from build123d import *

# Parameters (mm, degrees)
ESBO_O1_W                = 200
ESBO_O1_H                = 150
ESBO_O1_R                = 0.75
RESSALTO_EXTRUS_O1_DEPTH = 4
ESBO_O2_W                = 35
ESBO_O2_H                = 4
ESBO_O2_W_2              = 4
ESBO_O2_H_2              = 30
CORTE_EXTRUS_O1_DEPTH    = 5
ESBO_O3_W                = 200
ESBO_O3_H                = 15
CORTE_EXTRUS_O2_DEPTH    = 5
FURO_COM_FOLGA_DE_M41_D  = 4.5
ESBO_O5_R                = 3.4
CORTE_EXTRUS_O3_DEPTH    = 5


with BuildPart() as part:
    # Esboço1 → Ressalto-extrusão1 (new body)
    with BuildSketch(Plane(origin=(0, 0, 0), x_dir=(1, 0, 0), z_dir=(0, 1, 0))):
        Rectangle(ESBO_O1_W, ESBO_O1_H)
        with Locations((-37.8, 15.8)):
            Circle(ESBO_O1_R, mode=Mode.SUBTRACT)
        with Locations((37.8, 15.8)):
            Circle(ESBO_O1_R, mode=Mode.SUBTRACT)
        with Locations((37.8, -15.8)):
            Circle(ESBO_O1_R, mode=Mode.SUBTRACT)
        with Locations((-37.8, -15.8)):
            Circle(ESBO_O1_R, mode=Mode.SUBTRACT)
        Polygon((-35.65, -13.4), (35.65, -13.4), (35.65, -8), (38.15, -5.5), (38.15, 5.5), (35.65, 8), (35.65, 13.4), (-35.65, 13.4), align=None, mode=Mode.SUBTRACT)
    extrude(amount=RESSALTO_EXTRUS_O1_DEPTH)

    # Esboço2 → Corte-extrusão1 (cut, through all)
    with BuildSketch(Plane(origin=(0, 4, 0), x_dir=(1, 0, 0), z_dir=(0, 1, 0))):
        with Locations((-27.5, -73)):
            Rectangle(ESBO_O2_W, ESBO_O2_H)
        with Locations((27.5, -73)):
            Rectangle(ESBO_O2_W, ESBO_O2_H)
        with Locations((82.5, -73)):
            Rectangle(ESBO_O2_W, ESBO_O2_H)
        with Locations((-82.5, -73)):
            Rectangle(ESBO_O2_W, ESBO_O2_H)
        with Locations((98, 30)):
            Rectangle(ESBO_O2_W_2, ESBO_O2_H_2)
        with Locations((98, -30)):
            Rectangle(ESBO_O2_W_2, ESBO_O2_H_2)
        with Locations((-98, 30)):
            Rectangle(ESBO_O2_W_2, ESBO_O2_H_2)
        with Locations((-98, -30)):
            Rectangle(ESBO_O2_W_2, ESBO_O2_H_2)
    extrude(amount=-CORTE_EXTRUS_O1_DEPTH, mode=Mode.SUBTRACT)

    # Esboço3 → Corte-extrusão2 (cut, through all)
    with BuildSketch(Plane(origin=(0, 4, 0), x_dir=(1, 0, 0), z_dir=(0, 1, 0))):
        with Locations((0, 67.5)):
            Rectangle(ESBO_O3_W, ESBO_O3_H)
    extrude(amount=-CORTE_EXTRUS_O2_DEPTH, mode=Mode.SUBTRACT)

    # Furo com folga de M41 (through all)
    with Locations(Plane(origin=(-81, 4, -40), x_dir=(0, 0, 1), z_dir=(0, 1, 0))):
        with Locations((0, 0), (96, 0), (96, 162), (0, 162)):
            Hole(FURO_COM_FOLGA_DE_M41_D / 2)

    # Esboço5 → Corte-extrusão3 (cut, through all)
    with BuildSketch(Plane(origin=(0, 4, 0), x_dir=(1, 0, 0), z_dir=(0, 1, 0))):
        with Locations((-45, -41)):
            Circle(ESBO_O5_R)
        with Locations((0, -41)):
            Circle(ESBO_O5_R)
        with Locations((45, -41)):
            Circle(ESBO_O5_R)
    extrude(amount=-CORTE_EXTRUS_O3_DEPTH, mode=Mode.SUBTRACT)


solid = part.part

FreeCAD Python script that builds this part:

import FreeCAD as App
import Part
import Sketcher

doc = App.newDocument("Part")
body = doc.addObject("PartDesign::Body", "Body")

# Sketch on XZ plane
sketch1 = body.newObject("Sketcher::SketchObject", "Sketch")
sketch1.AttachmentSupport = (doc.getObject("XZ_Plane"), [""])
sketch1.MapMode = "FlatFace"
sketch1.addGeometry(Part.LineSegment(App.Vector(-100, -75, 0), App.Vector(-100, 75, 0)), False)
sketch1.addGeometry(Part.LineSegment(App.Vector(-100, 75, 0), App.Vector(100, 75, 0)), False)
sketch1.addGeometry(Part.LineSegment(App.Vector(100, 75, 0), App.Vector(100, -75, 0)), False)
sketch1.addGeometry(Part.LineSegment(App.Vector(100, -75, 0), App.Vector(-100, -75, 0)), False)
sketch1.addGeometry(Part.Circle(App.Vector(-37.8, 15.8, 0), App.Vector(0, 0, 1), 0.75), False)
sketch1.addGeometry(Part.Circle(App.Vector(37.8, 15.8, 0), App.Vector(0, 0, 1), 0.75), False)
sketch1.addGeometry(Part.Circle(App.Vector(-37.8, -15.8, 0), App.Vector(0, 0, 1), 0.75), False)
sketch1.addGeometry(Part.LineSegment(App.Vector(35.65, 13.4, 0), App.Vector(-35.65, 13.4, 0)), False)
sketch1.addGeometry(Part.LineSegment(App.Vector(-35.65, 13.4, 0), App.Vector(-35.65, -13.4, 0)), False)
sketch1.addGeometry(Part.LineSegment(App.Vector(-35.65, -13.4, 0), App.Vector(35.65, -13.4, 0)), False)
sketch1.addGeometry(Part.LineSegment(App.Vector(35.65, -13.4, 0), App.Vector(35.65, -8, 0)), False)
sketch1.addGeometry(Part.LineSegment(App.Vector(35.65, -8, 0), App.Vector(38.15, -5.5, 0)), False)
sketch1.addGeometry(Part.LineSegment(App.Vector(38.15, -5.5, 0), App.Vector(38.15, 5.5, 0)), False)
sketch1.addGeometry(Part.LineSegment(App.Vector(38.15, 5.5, 0), App.Vector(35.65, 8, 0)), False)
sketch1.addGeometry(Part.LineSegment(App.Vector(35.65, 8, 0), App.Vector(35.65, 13.4, 0)), False)
sketch1.addGeometry(Part.Circle(App.Vector(37.8, -15.8, 0), App.Vector(0, 0, 1), 0.75), False)
sketch1.addConstraint(Sketcher.Constraint("Coincident", 0, 2, 1, 1))
sketch1.addConstraint(Sketcher.Constraint("Coincident", 1, 2, 2, 1))
sketch1.addConstraint(Sketcher.Constraint("Coincident", 2, 2, 3, 1))
sketch1.addConstraint(Sketcher.Constraint("Coincident", 3, 2, 0, 1))
sketch1.addConstraint(Sketcher.Constraint("Coincident", 7, 2, 8, 1))
sketch1.addConstraint(Sketcher.Constraint("Coincident", 8, 2, 9, 1))
sketch1.addConstraint(Sketcher.Constraint("Coincident", 9, 2, 10, 1))
sketch1.addConstraint(Sketcher.Constraint("Coincident", 10, 2, 11, 1))
sketch1.addConstraint(Sketcher.Constraint("Coincident", 11, 2, 12, 1))
sketch1.addConstraint(Sketcher.Constraint("Coincident", 12, 2, 13, 1))
sketch1.addConstraint(Sketcher.Constraint("Coincident", 13, 2, 14, 1))
sketch1.addConstraint(Sketcher.Constraint("Coincident", 14, 2, 7, 1))
sketch1.addConstraint(Sketcher.Constraint("Vertical", 0))
sketch1.addConstraint(Sketcher.Constraint("Horizontal", 1))
sketch1.addConstraint(Sketcher.Constraint("Vertical", 2))
sketch1.addConstraint(Sketcher.Constraint("Horizontal", 3))
sketch1.addConstraint(Sketcher.Constraint("Horizontal", 7))
sketch1.addConstraint(Sketcher.Constraint("Vertical", 8))
sketch1.addConstraint(Sketcher.Constraint("Horizontal", 9))
sketch1.addConstraint(Sketcher.Constraint("Vertical", 10))
sketch1.addConstraint(Sketcher.Constraint("Vertical", 12))
sketch1.addConstraint(Sketcher.Constraint("Vertical", 14))
sketch1.addConstraint(Sketcher.Constraint("Equal", 4, 5))
sketch1.addConstraint(Sketcher.Constraint("Equal", 5, 6))
sketch1.addConstraint(Sketcher.Constraint("Equal", 6, 15))
sketch1.addConstraint(Sketcher.Constraint("Symmetric", 5, 3, 6, 3, -1, 1))
sketch1.addConstraint(Sketcher.Constraint("Symmetric", 4, 3, 15, 3, -1, 1))
sketch1.addConstraint(Sketcher.Constraint("Symmetric", 0, 2, 2, 2, -1, 1))
sketch1.addConstraint(Sketcher.Constraint("Symmetric", 7, 2, 9, 2, -1, 1))
sketch1.addConstraint(Sketcher.Constraint("Symmetric", 4, 3, 5, 3, -2))
sketch1.addConstraint(Sketcher.Constraint("Symmetric", 10, 2, 13, 2, -1))
sketch1.addConstraint(Sketcher.Constraint("Perpendicular", 11, 13))
sketch1.addConstraint(Sketcher.Constraint("Equal", 11, 13))
sketch1.addConstraint(Sketcher.Constraint("Diameter", 4, 1.5))
sketch1.addConstraint(Sketcher.Constraint("DistanceX", 1, 1, 1, 2, 200.0))
sketch1.addConstraint(Sketcher.Constraint("DistanceY", 0, 1, 0, 2, 150.0))
sketch1.addConstraint(Sketcher.Constraint("DistanceY", 12, 1, 12, 2, 11.0))
sketch1.addConstraint(Sketcher.Constraint("DistanceX", 7, 2, 7, 1, 71.3))
sketch1.addConstraint(Sketcher.Constraint("DistanceY", 8, 2, 8, 1, 26.8))
sketch1.addConstraint(Sketcher.Constraint("DistanceY", 10, 1, 10, 2, 5.4))
sketch1.addConstraint(Sketcher.Constraint("DistanceX", 4, 3, -1, 1, 37.8))
sketch1.addConstraint(Sketcher.Constraint("DistanceY", -1, 1, 4, 3, 15.8))
pad1 = body.newObject("PartDesign::Pad", "Pad")
pad1.Profile = sketch1
pad1.Length = 4
pad1.Reversed = True

# Sketch on XZ plane
sketch2 = body.newObject("Sketcher::SketchObject", "Sketch001")
sketch2.AttachmentSupport = (doc.getObject("XZ_Plane"), [""])
sketch2.MapMode = "FlatFace"
sketch2.AttachmentOffset = App.Placement(App.Vector(0, 0, -4), App.Rotation())
sketch2.addGeometry(Part.LineSegment(App.Vector(-45, 71, 0), App.Vector(-45, 75, 0)), False)
sketch2.addGeometry(Part.LineSegment(App.Vector(-45, 75, 0), App.Vector(-10, 75, 0)), False)
sketch2.addGeometry(Part.LineSegment(App.Vector(-10, 75, 0), App.Vector(-10, 71, 0)), False)
sketch2.addGeometry(Part.LineSegment(App.Vector(-10, 71, 0), App.Vector(-45, 71, 0)), False)
sketch2.addGeometry(Part.LineSegment(App.Vector(10, 71, 0), App.Vector(10, 75, 0)), False)
sketch2.addGeometry(Part.LineSegment(App.Vector(10, 75, 0), App.Vector(45, 75, 0)), False)
sketch2.addGeometry(Part.LineSegment(App.Vector(45, 75, 0), App.Vector(45, 71, 0)), False)
sketch2.addGeometry(Part.LineSegment(App.Vector(45, 71, 0), App.Vector(10, 71, 0)), False)
sketch2.addGeometry(Part.LineSegment(App.Vector(65, 71, 0), App.Vector(65, 75, 0)), False)
sketch2.addGeometry(Part.LineSegment(App.Vector(65, 75, 0), App.Vector(100, 75, 0)), False)
sketch2.addGeometry(Part.LineSegment(App.Vector(100, 75, 0), App.Vector(100, 71, 0)), False)
sketch2.addGeometry(Part.LineSegment(App.Vector(100, 71, 0), App.Vector(65, 71, 0)), False)
sketch2.addGeometry(Part.LineSegment(App.Vector(-100, 71, 0), App.Vector(-100, 75, 0)), False)
sketch2.addGeometry(Part.LineSegment(App.Vector(-100, 75, 0), App.Vector(-65, 75, 0)), False)
sketch2.addGeometry(Part.LineSegment(App.Vector(-65, 75, 0), App.Vector(-65, 71, 0)), False)
sketch2.addGeometry(Part.LineSegment(App.Vector(-65, 71, 0), App.Vector(-100, 71, 0)), False)
sketch2.addGeometry(Part.LineSegment(App.Vector(96, -45, 0), App.Vector(96, -15, 0)), False)
sketch2.addGeometry(Part.LineSegment(App.Vector(96, -15, 0), App.Vector(100, -15, 0)), False)
sketch2.addGeometry(Part.LineSegment(App.Vector(100, -15, 0), App.Vector(100, -45, 0)), False)
sketch2.addGeometry(Part.LineSegment(App.Vector(100, -45, 0), App.Vector(96, -45, 0)), False)
sketch2.addGeometry(Part.LineSegment(App.Vector(96, 15, 0), App.Vector(96, 45, 0)), False)
sketch2.addGeometry(Part.LineSegment(App.Vector(96, 45, 0), App.Vector(100, 45, 0)), False)
sketch2.addGeometry(Part.LineSegment(App.Vector(100, 45, 0), App.Vector(100, 15, 0)), False)
sketch2.addGeometry(Part.LineSegment(App.Vector(100, 15, 0), App.Vector(96, 15, 0)), False)
sketch2.addGeometry(Part.LineSegment(App.Vector(-100, -45, 0), App.Vector(-100, -15, 0)), False)
sketch2.addGeometry(Part.LineSegment(App.Vector(-100, -15, 0), App.Vector(-96, -15, 0)), False)
sketch2.addGeometry(Part.LineSegment(App.Vector(-96, -15, 0), App.Vector(-96, -45, 0)), False)
sketch2.addGeometry(Part.LineSegment(App.Vector(-96, -45, 0), App.Vector(-100, -45, 0)), False)
sketch2.addGeometry(Part.LineSegment(App.Vector(-100, 15, 0), App.Vector(-100, 45, 0)), False)
sketch2.addGeometry(Part.LineSegment(App.Vector(-100, 45, 0), App.Vector(-96, 45, 0)), False)
sketch2.addGeometry(Part.LineSegment(App.Vector(-96, 45, 0), App.Vector(-96, 15, 0)), False)
sketch2.addGeometry(Part.LineSegment(App.Vector(-96, 15, 0), App.Vector(-100, 15, 0)), False)
sketch2.addConstraint(Sketcher.Constraint("Coincident", 0, 2, 1, 1))
sketch2.addConstraint(Sketcher.Constraint("Coincident", 1, 2, 2, 1))
sketch2.addConstraint(Sketcher.Constraint("Coincident", 2, 2, 3, 1))
sketch2.addConstraint(Sketcher.Constraint("Coincident", 3, 2, 0, 1))
sketch2.addConstraint(Sketcher.Constraint("Coincident", 4, 2, 5, 1))
sketch2.addConstraint(Sketcher.Constraint("Coincident", 5, 2, 6, 1))
sketch2.addConstraint(Sketcher.Constraint("Coincident", 6, 2, 7, 1))
sketch2.addConstraint(Sketcher.Constraint("Coincident", 7, 2, 4, 1))
sketch2.addConstraint(Sketcher.Constraint("Coincident", 8, 2, 9, 1))
sketch2.addConstraint(Sketcher.Constraint("Coincident", 9, 2, 10, 1))
sketch2.addConstraint(Sketcher.Constraint("Coincident", 10, 2, 11, 1))
sketch2.addConstraint(Sketcher.Constraint("Coincident", 11, 2, 8, 1))
sketch2.addConstraint(Sketcher.Constraint("Coincident", 12, 2, 13, 1))
sketch2.addConstraint(Sketcher.Constraint("Coincident", 13, 2, 14, 1))
sketch2.addConstraint(Sketcher.Constraint("Coincident", 14, 2, 15, 1))
sketch2.addConstraint(Sketcher.Constraint("Coincident", 15, 2, 12, 1))
sketch2.addConstraint(Sketcher.Constraint("Coincident", 16, 2, 17, 1))
sketch2.addConstraint(Sketcher.Constraint("Coincident", 17, 2, 18, 1))
sketch2.addConstraint(Sketcher.Constraint("Coincident", 18, 2, 19, 1))
sketch2.addConstraint(Sketcher.Constraint("Coincident", 19, 2, 16, 1))
sketch2.addConstraint(Sketcher.Constraint("Coincident", 20, 2, 21, 1))
sketch2.addConstraint(Sketcher.Constraint("Coincident", 21, 2, 22, 1))
sketch2.addConstraint(Sketcher.Constraint("Coincident", 22, 2, 23, 1))
sketch2.addConstraint(Sketcher.Constraint("Coincident", 23, 2, 20, 1))
sketch2.addConstraint(Sketcher.Constraint("Coincident", 24, 2, 25, 1))
sketch2.addConstraint(Sketcher.Constraint("Coincident", 25, 2, 26, 1))
sketch2.addConstraint(Sketcher.Constraint("Coincident", 26, 2, 27, 1))
sketch2.addConstraint(Sketcher.Constraint("Coincident", 27, 2, 24, 1))
sketch2.addConstraint(Sketcher.Constraint("Coincident", 28, 2, 29, 1))
sketch2.addConstraint(Sketcher.Constraint("Coincident", 29, 2, 30, 1))
sketch2.addConstraint(Sketcher.Constraint("Coincident", 30, 2, 31, 1))
sketch2.addConstraint(Sketcher.Constraint("Coincident", 31, 2, 28, 1))
sketch2.addConstraint(Sketcher.Constraint("Vertical", 0))
sketch2.addConstraint(Sketcher.Constraint("Horizontal", 1))
sketch2.addConstraint(Sketcher.Constraint("Vertical", 2))
sketch2.addConstraint(Sketcher.Constraint("Horizontal", 3))
sketch2.addConstraint(Sketcher.Constraint("Vertical", 4))
sketch2.addConstraint(Sketcher.Constraint("Horizontal", 5))
sketch2.addConstraint(Sketcher.Constraint("Vertical", 6))
sketch2.addConstraint(Sketcher.Constraint("Horizontal", 7))
sketch2.addConstraint(Sketcher.Constraint("Vertical", 8))
sketch2.addConstraint(Sketcher.Constraint("Horizontal", 9))
sketch2.addConstraint(Sketcher.Constraint("Vertical", 10))
sketch2.addConstraint(Sketcher.Constraint("Horizontal", 11))
sketch2.addConstraint(Sketcher.Constraint("Vertical", 12))
sketch2.addConstraint(Sketcher.Constraint("Horizontal", 13))
sketch2.addConstraint(Sketcher.Constraint("Vertical", 14))
sketch2.addConstraint(Sketcher.Constraint("Horizontal", 15))
sketch2.addConstraint(Sketcher.Constraint("Vertical", 16))
sketch2.addConstraint(Sketcher.Constraint("Horizontal", 17))
sketch2.addConstraint(Sketcher.Constraint("Vertical", 18))
sketch2.addConstraint(Sketcher.Constraint("Horizontal", 19))
sketch2.addConstraint(Sketcher.Constraint("Vertical", 20))
sketch2.addConstraint(Sketcher.Constraint("Horizontal", 21))
sketch2.addConstraint(Sketcher.Constraint("Vertical", 22))
sketch2.addConstraint(Sketcher.Constraint("Horizontal", 23))
sketch2.addConstraint(Sketcher.Constraint("Vertical", 24))
sketch2.addConstraint(Sketcher.Constraint("Horizontal", 25))
sketch2.addConstraint(Sketcher.Constraint("Vertical", 26))
sketch2.addConstraint(Sketcher.Constraint("Horizontal", 27))
sketch2.addConstraint(Sketcher.Constraint("Vertical", 28))
sketch2.addConstraint(Sketcher.Constraint("Horizontal", 29))
sketch2.addConstraint(Sketcher.Constraint("Vertical", 30))
sketch2.addConstraint(Sketcher.Constraint("Horizontal", 31))
sketch2.addConstraint(Sketcher.Constraint("Symmetric", 22, 2, 24, 2, -1, 1))
sketch2.addConstraint(Sketcher.Constraint("Symmetric", 20, 2, 26, 2, -1, 1))
sketch2.addConstraint(Sketcher.Constraint("Symmetric", 18, 2, 28, 2, -1, 1))
sketch2.addConstraint(Sketcher.Constraint("Symmetric", 16, 2, 30, 2, -1, 1))
sketch2.addConstraint(Sketcher.Constraint("Symmetric", 1, 2, 4, 2, -2))
sketch2.addConstraint(Sketcher.Constraint("Symmetric", 3, 2, 6, 2, -2))
sketch2.addConstraint(Sketcher.Constraint("Symmetric", 9, 2, 12, 2, -2))
sketch2.addConstraint(Sketcher.Constraint("Symmetric", 11, 2, 14, 2, -2))
sketch2.addConstraint(Sketcher.Constraint("Symmetric", 17, 2, 24, 2, -2))
sketch2.addConstraint(Sketcher.Constraint("Symmetric", 19, 2, 26, 2, -2))
sketch2.addConstraint(Sketcher.Constraint("Horizontal", 5, 2, 8, 2))
sketch2.addConstraint(Sketcher.Constraint("Horizontal", 7, 2, 10, 2))
sketch2.addConstraint(Sketcher.Constraint("Vertical", 10, 2, 17, 2))
sketch2.addConstraint(Sketcher.Constraint("Equal", 7, 9))
sketch2.addConstraint(Sketcher.Constraint("Equal", 31, 0))
sketch2.addConstraint(Sketcher.Constraint("DistanceX", 1, 1, 1, 2, 35.0))
sketch2.addConstraint(Sketcher.Constraint("DistanceX", 17, 1, 17, 2, 4.0))
sketch2.addConstraint(Sketcher.Constraint("DistanceY", 16, 1, 16, 2, 30.0))
sketch2.addConstraint(Sketcher.Constraint("DistanceX", 0, 2, -1, 1, 45.0))
sketch2.addConstraint(Sketcher.Constraint("DistanceY", -1, 1, 0, 2, 75.0))
sketch2.addConstraint(Sketcher.Constraint("DistanceX", -1, 1, 8, 2, 65.0))
sketch2.addConstraint(Sketcher.Constraint("DistanceY", 16, 2, -1, 1, 15.0))
pocket1 = body.newObject("PartDesign::Pocket", "Pocket")
pocket1.Profile = sketch2
pocket1.Type = "ThroughAll"
pocket1.Reversed = True

# Sketch on XZ plane
sketch3 = body.newObject("Sketcher::SketchObject", "Sketch002")
sketch3.AttachmentSupport = (doc.getObject("XZ_Plane"), [""])
sketch3.MapMode = "FlatFace"
sketch3.AttachmentOffset = App.Placement(App.Vector(0, 0, -4), App.Rotation())
sketch3.addGeometry(Part.LineSegment(App.Vector(-100, -75, 0), App.Vector(-100, -60, 0)), False)
sketch3.addGeometry(Part.LineSegment(App.Vector(-100, -60, 0), App.Vector(100, -60, 0)), False)
sketch3.addGeometry(Part.LineSegment(App.Vector(100, -60, 0), App.Vector(100, -75, 0)), False)
sketch3.addGeometry(Part.LineSegment(App.Vector(100, -75, 0), App.Vector(-100, -75, 0)), False)
sketch3.addConstraint(Sketcher.Constraint("Coincident", 0, 2, 1, 1))
sketch3.addConstraint(Sketcher.Constraint("Coincident", 1, 2, 2, 1))
sketch3.addConstraint(Sketcher.Constraint("Coincident", 2, 2, 3, 1))
sketch3.addConstraint(Sketcher.Constraint("Coincident", 3, 2, 0, 1))
sketch3.addConstraint(Sketcher.Constraint("Vertical", 0))
sketch3.addConstraint(Sketcher.Constraint("Horizontal", 1))
sketch3.addConstraint(Sketcher.Constraint("Vertical", 2))
sketch3.addConstraint(Sketcher.Constraint("Horizontal", 3))
sketch3.addConstraint(Sketcher.Constraint("DistanceX", 1, 1, 1, 2, 200.0))
sketch3.addConstraint(Sketcher.Constraint("DistanceY", 0, 1, 0, 2, 15.0))
sketch3.addConstraint(Sketcher.Constraint("DistanceX", 0, 2, -1, 1, 100.0))
sketch3.addConstraint(Sketcher.Constraint("DistanceY", 0, 2, -1, 1, 60.0))
pocket2 = body.newObject("PartDesign::Pocket", "Pocket001")
pocket2.Profile = sketch3
pocket2.Type = "ThroughAll"
pocket2.Reversed = True

# Sketch on XZ plane
sketch4 = body.newObject("Sketcher::SketchObject", "Sketch003")
sketch4.AttachmentSupport = (doc.getObject("XZ_Plane"), [""])
sketch4.MapMode = "FlatFace"
sketch4.AttachmentOffset = App.Placement(App.Vector(0, 0, -4), App.Rotation())
sketch4.addGeometry(Part.Circle(App.Vector(-81, -40, 0), App.Vector(0, 0, 1), 2.25), False)
sketch4.addGeometry(Part.Circle(App.Vector(-81, 56, 0), App.Vector(0, 0, 1), 2.25), False)
sketch4.addGeometry(Part.Circle(App.Vector(81, 56, 0), App.Vector(0, 0, 1), 2.25), False)
sketch4.addGeometry(Part.Circle(App.Vector(81, -40, 0), App.Vector(0, 0, 1), 2.25), False)
sketch4.addConstraint(Sketcher.Constraint("Equal", 0, 1))
sketch4.addConstraint(Sketcher.Constraint("Equal", 1, 2))
sketch4.addConstraint(Sketcher.Constraint("Equal", 2, 3))
sketch4.addConstraint(Sketcher.Constraint("Symmetric", 1, 3, 2, 3, -2))
sketch4.addConstraint(Sketcher.Constraint("Symmetric", 0, 3, 3, 3, -2))
sketch4.addConstraint(Sketcher.Constraint("Vertical", 0, 3, 1, 3))
sketch4.addConstraint(Sketcher.Constraint("Diameter", 0, 4.5))
sketch4.addConstraint(Sketcher.Constraint("DistanceX", 0, 3, -1, 1, 81.0))
sketch4.addConstraint(Sketcher.Constraint("DistanceY", 0, 3, -1, 1, 40.0))
sketch4.addConstraint(Sketcher.Constraint("DistanceY", -1, 1, 1, 3, 56.0))
doc.recompute()
hole = body.newObject("PartDesign::Hole", "Hole")
hole.Profile = sketch4
hole.ThreadType = "None"
hole.Diameter = 4.5
hole.DepthType = "ThroughAll"
hole.Reversed = True

# Sketch on XZ plane
sketch5 = body.newObject("Sketcher::SketchObject", "Sketch004")
sketch5.AttachmentSupport = (doc.getObject("XZ_Plane"), [""])
sketch5.MapMode = "FlatFace"
sketch5.AttachmentOffset = App.Placement(App.Vector(0, 0, -4), App.Rotation())
sketch5.addGeometry(Part.Circle(App.Vector(-45, 41, 0), App.Vector(0, 0, 1), 3.4), False)
sketch5.addGeometry(Part.Circle(App.Vector(0, 41, 0), App.Vector(0, 0, 1), 3.4), False)
sketch5.addGeometry(Part.Circle(App.Vector(45, 41, 0), App.Vector(0, 0, 1), 3.4), False)
sketch5.addConstraint(Sketcher.Constraint("Equal", 0, 1))
sketch5.addConstraint(Sketcher.Constraint("Equal", 1, 2))
sketch5.addConstraint(Sketcher.Constraint("Symmetric", 0, 3, 2, 3, -2))
sketch5.addConstraint(Sketcher.Constraint("PointOnObject", 1, 3, -2))
sketch5.addConstraint(Sketcher.Constraint("Horizontal", 0, 3, 1, 3))
sketch5.addConstraint(Sketcher.Constraint("Diameter", 0, 6.8))
sketch5.addConstraint(Sketcher.Constraint("DistanceX", 0, 3, -1, 1, 45.0))
sketch5.addConstraint(Sketcher.Constraint("DistanceY", -1, 1, 0, 3, 41.0))
pocket3 = body.newObject("PartDesign::Pocket", "Pocket002")
pocket3.Profile = sketch5
pocket3.Type = "ThroughAll"
pocket3.Reversed = True

doc.recompute()
